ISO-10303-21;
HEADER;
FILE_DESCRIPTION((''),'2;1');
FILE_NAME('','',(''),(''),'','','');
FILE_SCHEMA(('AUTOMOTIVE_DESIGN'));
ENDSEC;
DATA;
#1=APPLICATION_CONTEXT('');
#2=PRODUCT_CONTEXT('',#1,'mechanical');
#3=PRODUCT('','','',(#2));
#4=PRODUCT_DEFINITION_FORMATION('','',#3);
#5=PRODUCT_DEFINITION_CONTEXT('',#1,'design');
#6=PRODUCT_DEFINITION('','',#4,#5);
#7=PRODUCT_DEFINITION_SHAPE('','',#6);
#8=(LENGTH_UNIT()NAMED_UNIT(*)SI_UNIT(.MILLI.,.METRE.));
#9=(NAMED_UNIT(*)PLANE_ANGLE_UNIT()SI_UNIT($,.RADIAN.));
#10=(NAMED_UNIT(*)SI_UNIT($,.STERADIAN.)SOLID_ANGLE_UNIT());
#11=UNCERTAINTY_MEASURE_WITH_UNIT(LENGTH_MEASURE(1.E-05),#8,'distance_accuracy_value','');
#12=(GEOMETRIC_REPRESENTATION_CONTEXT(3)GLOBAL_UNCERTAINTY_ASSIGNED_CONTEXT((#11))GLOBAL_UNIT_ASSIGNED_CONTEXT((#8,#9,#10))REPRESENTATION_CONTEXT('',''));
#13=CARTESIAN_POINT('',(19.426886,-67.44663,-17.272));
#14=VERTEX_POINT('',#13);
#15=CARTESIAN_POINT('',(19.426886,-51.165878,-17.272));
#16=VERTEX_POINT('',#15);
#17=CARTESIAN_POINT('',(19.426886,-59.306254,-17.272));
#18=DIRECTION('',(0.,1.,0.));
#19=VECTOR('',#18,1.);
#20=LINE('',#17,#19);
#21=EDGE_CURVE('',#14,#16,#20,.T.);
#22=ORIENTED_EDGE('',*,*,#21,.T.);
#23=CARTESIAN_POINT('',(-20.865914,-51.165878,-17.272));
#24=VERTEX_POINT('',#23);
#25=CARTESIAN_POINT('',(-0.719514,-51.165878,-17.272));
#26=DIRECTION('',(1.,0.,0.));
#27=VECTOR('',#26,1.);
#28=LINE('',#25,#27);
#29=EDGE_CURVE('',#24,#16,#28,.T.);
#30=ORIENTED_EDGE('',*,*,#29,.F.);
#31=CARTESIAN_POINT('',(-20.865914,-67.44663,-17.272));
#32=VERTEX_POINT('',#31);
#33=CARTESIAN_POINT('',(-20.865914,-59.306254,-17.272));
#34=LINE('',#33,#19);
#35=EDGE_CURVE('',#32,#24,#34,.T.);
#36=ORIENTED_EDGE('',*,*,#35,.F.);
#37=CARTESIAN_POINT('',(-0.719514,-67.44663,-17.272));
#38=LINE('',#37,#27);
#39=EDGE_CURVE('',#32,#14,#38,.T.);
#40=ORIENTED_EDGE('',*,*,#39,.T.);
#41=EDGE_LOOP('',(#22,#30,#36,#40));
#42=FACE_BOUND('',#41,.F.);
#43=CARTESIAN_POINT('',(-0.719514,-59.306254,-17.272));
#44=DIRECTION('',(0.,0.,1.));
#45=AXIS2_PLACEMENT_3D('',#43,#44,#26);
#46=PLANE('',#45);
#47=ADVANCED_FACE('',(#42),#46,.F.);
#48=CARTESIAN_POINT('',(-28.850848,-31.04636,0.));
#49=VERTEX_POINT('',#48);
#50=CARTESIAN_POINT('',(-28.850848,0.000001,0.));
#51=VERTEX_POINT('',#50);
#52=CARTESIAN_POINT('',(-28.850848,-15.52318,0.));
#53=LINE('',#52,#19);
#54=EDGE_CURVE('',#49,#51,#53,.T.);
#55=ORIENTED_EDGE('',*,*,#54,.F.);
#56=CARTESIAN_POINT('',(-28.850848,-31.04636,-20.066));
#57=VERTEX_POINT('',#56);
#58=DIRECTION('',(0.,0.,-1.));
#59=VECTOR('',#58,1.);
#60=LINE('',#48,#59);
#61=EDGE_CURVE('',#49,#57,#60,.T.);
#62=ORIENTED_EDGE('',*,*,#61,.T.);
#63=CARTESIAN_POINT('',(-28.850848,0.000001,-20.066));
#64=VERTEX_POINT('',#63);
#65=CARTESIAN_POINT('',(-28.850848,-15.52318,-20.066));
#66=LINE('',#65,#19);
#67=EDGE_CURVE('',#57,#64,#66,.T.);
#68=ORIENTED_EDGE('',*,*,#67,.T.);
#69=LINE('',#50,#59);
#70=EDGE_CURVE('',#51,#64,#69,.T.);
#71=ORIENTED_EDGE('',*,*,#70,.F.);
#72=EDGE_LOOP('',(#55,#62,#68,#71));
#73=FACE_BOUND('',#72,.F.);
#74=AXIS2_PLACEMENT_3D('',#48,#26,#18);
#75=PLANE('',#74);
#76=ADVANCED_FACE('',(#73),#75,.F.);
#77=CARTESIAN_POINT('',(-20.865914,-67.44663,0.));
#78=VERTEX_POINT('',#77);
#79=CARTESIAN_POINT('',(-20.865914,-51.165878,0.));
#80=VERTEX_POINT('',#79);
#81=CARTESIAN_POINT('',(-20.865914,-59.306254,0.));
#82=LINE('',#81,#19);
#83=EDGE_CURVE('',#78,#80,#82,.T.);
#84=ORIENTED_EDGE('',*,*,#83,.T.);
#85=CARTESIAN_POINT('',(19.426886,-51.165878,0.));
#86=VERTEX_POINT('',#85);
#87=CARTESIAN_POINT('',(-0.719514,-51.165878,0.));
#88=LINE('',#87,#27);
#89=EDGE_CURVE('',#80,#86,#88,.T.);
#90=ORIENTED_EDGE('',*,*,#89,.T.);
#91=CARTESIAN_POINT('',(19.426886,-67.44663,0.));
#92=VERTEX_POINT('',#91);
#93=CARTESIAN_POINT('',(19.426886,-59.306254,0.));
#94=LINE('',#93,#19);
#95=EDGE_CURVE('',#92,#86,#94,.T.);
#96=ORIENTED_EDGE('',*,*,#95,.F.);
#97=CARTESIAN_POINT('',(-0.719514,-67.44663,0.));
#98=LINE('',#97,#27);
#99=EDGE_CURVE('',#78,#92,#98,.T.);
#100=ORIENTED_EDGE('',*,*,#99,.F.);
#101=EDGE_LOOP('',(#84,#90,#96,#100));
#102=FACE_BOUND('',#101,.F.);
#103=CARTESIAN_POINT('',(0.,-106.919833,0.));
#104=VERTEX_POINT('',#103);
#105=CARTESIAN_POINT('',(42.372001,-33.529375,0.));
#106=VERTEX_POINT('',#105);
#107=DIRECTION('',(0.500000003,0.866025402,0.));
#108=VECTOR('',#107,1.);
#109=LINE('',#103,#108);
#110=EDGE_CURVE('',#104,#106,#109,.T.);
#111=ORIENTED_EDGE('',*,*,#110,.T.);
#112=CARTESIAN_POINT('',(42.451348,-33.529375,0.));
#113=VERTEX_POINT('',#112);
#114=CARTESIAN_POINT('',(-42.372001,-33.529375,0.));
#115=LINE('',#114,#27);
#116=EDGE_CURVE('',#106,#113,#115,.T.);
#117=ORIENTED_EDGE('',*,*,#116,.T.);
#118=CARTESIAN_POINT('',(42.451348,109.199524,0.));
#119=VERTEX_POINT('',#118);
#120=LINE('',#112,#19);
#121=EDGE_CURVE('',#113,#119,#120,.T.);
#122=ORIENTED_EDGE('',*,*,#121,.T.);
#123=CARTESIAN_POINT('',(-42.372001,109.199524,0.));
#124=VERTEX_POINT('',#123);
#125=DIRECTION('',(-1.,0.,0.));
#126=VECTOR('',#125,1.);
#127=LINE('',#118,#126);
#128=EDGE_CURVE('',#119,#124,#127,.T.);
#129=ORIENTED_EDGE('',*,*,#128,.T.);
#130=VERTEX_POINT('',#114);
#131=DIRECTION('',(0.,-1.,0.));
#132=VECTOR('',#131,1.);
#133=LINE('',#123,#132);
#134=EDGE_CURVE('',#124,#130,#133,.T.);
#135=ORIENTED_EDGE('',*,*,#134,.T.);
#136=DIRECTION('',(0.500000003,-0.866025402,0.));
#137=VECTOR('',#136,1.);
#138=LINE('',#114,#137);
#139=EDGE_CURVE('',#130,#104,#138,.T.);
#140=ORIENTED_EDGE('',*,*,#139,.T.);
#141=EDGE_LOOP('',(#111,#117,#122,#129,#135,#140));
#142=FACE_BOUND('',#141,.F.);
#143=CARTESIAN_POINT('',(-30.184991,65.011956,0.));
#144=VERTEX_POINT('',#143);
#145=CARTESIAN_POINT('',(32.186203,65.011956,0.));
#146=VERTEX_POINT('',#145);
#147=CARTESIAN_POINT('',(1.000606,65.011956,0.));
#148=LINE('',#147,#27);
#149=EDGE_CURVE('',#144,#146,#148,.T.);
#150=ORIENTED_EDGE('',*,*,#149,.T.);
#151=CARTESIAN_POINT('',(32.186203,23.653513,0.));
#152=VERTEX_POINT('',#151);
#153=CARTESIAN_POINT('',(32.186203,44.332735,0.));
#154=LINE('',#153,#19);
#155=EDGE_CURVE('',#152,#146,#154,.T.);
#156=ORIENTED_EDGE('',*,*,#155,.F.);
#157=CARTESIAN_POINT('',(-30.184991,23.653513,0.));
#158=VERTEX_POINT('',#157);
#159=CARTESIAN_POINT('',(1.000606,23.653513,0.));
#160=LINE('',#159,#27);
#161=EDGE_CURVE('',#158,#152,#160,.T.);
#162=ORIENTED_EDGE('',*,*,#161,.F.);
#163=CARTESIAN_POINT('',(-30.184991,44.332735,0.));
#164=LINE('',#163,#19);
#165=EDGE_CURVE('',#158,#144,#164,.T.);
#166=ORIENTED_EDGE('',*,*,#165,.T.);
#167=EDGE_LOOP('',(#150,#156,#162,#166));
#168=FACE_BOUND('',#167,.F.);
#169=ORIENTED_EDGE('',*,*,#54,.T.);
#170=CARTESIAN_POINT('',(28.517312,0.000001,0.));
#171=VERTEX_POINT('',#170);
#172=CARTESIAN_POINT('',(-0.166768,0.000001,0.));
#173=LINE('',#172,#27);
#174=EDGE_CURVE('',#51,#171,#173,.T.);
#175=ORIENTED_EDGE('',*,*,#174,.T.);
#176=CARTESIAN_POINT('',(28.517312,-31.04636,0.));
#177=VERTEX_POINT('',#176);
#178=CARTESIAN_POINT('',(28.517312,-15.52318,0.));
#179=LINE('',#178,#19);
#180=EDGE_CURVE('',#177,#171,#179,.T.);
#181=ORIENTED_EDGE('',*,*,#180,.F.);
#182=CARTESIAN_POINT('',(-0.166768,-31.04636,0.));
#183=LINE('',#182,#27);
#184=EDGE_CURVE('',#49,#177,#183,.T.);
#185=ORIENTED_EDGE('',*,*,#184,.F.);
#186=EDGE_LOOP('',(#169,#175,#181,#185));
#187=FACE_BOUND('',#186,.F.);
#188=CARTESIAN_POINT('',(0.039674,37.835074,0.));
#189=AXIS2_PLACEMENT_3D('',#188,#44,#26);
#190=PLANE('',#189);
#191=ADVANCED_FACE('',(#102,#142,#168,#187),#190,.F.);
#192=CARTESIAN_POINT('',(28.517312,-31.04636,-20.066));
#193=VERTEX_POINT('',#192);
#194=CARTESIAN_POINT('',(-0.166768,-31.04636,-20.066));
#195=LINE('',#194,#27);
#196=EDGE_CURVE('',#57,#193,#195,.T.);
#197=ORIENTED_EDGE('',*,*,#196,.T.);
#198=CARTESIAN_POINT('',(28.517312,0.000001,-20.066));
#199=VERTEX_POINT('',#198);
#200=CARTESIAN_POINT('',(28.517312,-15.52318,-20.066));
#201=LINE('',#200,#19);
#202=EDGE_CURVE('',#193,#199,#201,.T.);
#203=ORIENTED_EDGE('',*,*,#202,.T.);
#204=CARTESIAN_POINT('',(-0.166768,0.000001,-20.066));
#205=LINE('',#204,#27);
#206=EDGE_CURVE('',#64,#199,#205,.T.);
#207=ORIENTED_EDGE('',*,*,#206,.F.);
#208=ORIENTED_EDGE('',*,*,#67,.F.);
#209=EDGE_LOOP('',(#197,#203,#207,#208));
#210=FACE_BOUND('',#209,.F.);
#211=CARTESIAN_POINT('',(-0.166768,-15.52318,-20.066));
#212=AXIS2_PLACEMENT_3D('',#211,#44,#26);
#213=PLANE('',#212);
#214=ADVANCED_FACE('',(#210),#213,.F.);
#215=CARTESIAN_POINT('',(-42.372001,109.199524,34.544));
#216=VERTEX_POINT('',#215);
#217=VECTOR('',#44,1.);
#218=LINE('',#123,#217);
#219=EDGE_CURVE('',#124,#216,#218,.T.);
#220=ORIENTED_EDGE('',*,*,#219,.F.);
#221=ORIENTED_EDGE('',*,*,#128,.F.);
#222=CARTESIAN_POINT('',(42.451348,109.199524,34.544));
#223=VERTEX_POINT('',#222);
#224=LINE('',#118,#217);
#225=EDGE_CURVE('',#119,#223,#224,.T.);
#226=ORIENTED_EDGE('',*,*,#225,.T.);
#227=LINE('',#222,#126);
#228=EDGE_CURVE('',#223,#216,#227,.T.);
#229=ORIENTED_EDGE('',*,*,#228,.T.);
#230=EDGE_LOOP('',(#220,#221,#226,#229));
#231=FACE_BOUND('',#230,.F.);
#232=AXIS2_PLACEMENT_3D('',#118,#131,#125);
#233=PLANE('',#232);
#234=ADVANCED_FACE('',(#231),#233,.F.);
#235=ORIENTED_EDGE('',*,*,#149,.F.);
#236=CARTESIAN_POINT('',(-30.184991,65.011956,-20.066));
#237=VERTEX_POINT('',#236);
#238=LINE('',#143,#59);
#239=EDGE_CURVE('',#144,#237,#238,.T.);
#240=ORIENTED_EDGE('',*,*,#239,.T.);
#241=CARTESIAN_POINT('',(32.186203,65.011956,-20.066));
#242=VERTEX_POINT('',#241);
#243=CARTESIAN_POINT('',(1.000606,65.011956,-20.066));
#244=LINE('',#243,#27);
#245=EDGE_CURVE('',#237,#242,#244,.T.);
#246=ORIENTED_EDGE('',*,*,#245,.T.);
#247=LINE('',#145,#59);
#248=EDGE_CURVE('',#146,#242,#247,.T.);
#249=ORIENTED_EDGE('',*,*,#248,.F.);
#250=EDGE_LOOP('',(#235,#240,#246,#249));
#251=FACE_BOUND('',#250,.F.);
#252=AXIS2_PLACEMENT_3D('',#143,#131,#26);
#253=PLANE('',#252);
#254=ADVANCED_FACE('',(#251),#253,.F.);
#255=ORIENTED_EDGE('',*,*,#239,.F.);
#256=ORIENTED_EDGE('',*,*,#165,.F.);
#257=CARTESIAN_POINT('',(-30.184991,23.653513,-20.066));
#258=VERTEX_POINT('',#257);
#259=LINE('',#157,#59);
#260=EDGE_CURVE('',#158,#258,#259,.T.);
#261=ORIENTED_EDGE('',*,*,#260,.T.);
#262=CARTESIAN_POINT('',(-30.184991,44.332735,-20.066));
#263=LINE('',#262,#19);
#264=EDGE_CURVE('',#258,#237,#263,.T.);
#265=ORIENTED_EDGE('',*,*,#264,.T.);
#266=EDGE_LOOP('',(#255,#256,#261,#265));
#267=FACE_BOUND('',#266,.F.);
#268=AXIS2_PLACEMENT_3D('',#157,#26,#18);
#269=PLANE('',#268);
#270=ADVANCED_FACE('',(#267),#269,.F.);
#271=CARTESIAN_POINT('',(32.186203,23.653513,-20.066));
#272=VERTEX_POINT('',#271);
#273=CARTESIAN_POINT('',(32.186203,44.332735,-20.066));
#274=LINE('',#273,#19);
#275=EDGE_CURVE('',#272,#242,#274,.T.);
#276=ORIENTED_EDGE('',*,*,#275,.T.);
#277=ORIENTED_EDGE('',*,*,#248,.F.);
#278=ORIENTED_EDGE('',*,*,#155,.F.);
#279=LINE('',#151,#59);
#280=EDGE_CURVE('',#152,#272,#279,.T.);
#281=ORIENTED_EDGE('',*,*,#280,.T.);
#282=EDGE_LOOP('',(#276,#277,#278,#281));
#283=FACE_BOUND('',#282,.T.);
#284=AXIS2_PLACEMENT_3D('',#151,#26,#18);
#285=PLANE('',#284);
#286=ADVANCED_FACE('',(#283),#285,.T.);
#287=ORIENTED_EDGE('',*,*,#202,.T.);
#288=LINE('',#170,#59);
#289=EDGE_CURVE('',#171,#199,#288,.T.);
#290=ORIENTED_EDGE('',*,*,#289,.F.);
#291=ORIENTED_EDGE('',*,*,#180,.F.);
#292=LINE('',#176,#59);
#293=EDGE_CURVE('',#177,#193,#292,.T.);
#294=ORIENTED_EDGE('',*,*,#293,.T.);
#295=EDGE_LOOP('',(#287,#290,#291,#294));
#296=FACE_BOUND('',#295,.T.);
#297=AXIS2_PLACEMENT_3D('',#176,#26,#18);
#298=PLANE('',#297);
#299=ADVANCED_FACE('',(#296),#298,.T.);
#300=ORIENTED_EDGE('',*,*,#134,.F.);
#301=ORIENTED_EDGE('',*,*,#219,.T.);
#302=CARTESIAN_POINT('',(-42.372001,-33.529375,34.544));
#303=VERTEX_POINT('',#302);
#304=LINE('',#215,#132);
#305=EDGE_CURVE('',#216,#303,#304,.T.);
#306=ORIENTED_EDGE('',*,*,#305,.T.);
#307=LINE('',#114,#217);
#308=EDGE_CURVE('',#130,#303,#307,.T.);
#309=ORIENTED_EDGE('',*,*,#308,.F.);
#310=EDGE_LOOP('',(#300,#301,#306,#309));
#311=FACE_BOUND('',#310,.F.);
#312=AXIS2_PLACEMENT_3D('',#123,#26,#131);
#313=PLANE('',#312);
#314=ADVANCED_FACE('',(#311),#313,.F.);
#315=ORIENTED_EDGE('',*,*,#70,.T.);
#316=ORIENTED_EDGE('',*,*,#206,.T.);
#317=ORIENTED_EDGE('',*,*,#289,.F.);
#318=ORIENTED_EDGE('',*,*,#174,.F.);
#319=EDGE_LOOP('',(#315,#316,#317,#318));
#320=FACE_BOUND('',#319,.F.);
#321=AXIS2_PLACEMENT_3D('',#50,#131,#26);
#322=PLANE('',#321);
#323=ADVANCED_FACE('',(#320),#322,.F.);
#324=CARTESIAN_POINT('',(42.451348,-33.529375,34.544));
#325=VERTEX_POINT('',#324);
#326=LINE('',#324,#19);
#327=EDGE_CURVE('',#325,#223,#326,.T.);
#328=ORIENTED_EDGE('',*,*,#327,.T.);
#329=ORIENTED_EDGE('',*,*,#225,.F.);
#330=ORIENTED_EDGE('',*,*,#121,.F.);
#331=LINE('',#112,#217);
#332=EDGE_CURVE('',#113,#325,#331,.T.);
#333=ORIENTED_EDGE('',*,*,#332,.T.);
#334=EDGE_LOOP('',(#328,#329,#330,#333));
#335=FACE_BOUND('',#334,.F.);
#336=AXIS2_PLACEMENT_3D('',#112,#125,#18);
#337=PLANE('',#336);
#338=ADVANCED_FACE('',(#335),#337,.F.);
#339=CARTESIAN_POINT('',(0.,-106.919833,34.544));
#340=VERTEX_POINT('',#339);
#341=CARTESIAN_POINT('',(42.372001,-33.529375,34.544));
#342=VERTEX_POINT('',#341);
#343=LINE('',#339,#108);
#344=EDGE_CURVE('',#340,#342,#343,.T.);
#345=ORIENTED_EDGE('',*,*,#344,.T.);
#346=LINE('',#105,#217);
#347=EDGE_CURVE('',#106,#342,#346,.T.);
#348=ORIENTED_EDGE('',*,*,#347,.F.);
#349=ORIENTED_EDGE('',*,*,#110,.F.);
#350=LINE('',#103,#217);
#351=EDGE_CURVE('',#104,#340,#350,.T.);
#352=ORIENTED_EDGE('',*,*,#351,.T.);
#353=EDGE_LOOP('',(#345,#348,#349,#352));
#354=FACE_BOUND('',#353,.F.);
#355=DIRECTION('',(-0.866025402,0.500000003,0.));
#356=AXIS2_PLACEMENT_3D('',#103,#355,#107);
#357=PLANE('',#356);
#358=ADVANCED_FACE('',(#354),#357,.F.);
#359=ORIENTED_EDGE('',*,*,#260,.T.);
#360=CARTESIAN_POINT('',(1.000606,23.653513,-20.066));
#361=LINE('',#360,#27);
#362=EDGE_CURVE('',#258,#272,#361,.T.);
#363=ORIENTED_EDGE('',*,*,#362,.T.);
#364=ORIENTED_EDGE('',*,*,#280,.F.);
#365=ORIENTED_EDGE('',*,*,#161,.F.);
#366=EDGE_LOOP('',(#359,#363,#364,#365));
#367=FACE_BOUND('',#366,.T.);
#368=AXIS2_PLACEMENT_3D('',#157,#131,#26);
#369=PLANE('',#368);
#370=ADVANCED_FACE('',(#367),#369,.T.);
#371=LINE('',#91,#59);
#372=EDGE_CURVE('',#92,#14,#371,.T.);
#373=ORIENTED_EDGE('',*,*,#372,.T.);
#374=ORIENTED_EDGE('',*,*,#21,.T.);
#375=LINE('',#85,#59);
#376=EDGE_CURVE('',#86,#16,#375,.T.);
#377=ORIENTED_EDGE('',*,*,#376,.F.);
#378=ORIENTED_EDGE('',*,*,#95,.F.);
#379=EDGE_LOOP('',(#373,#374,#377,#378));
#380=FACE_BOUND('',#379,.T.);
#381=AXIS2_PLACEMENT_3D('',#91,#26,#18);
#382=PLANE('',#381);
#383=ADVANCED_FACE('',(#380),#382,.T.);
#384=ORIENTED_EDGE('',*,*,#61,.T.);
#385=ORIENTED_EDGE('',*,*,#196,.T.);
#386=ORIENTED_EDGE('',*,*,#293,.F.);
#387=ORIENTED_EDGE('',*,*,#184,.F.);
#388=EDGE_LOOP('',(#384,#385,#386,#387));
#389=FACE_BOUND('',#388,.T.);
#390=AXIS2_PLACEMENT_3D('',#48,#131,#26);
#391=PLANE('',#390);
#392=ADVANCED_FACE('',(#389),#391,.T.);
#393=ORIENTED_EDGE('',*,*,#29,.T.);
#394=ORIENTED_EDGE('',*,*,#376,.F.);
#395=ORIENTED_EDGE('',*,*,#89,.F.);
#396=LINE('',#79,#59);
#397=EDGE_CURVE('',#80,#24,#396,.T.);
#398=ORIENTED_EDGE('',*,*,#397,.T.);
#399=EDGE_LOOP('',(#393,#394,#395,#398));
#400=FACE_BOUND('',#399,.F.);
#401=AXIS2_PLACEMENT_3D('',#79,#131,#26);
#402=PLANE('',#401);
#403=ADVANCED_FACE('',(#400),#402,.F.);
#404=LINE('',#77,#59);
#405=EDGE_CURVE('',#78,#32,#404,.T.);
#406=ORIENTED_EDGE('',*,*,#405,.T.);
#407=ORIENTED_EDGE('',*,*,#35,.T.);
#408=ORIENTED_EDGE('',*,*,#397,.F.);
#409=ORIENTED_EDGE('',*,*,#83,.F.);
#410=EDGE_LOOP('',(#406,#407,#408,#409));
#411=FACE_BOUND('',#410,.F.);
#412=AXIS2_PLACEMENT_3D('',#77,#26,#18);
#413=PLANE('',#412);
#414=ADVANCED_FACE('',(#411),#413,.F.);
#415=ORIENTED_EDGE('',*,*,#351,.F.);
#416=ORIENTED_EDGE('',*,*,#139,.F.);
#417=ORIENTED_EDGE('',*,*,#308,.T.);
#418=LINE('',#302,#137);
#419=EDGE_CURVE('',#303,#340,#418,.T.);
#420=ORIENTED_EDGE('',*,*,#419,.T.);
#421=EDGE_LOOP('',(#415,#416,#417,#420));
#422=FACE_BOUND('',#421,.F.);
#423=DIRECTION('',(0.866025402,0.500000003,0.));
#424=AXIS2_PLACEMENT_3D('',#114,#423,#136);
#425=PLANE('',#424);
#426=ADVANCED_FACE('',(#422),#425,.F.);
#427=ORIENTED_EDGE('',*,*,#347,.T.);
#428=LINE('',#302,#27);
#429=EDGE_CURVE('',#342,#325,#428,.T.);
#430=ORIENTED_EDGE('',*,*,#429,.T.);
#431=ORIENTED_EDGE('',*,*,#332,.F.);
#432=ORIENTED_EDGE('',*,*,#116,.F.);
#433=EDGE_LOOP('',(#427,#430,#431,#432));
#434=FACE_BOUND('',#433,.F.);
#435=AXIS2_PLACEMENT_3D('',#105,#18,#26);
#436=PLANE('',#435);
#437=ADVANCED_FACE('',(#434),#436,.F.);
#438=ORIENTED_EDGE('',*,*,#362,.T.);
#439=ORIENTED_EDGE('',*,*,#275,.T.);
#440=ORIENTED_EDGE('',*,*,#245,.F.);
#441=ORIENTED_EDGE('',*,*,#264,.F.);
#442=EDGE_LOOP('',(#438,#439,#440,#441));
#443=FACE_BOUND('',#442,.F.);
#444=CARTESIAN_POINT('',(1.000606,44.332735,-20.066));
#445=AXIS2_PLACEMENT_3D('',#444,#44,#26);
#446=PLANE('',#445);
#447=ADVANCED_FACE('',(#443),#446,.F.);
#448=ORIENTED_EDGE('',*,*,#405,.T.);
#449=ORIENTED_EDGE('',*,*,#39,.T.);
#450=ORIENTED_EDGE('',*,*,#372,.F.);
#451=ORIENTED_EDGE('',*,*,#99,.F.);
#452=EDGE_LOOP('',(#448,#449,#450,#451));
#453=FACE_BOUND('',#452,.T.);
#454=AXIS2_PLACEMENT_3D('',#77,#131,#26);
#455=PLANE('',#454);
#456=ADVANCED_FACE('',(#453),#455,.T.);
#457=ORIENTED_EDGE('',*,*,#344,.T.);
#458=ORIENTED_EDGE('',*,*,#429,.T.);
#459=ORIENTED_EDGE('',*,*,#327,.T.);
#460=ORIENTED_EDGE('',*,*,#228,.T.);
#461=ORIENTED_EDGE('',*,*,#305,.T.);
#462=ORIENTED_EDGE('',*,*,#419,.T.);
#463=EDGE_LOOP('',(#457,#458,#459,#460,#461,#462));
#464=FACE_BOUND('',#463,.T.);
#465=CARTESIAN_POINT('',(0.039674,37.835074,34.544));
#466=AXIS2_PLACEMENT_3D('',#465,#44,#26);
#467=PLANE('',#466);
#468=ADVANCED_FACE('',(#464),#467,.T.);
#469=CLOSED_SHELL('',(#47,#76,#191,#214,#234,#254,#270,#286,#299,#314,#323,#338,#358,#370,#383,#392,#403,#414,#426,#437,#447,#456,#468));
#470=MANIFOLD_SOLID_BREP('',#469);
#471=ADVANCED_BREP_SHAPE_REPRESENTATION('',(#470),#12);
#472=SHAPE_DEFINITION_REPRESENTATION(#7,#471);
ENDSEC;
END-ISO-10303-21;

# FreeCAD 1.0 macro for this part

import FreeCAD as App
import Part
import Sketcher
from FreeCAD import Vector
Q = App.Units.Quantity


def add_polygon(sketch, points):
    """Adds a closed chain of lines whose ends are joined by coincident constraints."""
    first, n = sketch.GeometryCount, len(points)
    for a, b in zip(points, points[1:] + points[:1]):
        sketch.addGeometry(Part.LineSegment(App.Vector(*a, 0), App.Vector(*b, 0)), False)
    for i in range(n):
        sketch.addConstraint(Sketcher.Constraint("Coincident", first + i, 2, first + (i + 1) % n, 1))

doc = App.newDocument("Part")
body = doc.addObject("PartDesign::Body", "Body")

sketch1 = doc.addObject("Sketcher::SketchObject", "Sketch")
body.addObject(sketch1)
sketch1.AttachmentSupport = (doc.XY_Plane, [""])
sketch1.MapMode = "FlatFace"
add_polygon(sketch1, [(42.372001, -33.529375), (42.451348, -33.529375), (42.451348, 109.199524), (-42.372001, 109.199524), (-42.372001, -33.529375), (0, -106.919833)])
sketch1.addConstraint(Sketcher.Constraint("Horizontal", 0))
sketch1.addConstraint(Sketcher.Constraint("Vertical", 1))
sketch1.addConstraint(Sketcher.Constraint("Horizontal", 2))
sketch1.addConstraint(Sketcher.Constraint("Vertical", 3))
sketch1.addConstraint(Sketcher.Constraint("Symmetric", 3, 2, 5, 2, -2))
sketch1.addConstraint(Sketcher.Constraint("PointOnObject", 4, 2, -2))
sketch1.addConstraint(Sketcher.Constraint("Angle", 4, Q("-60 deg")))
sketch1.addConstraint(Sketcher.Constraint("DistanceY", 1, 1, 1, 2, 142.728899))
sketch1.addConstraint(Sketcher.Constraint("Distance", 4, 84.744002))
sketch1.addConstraint(Sketcher.Constraint("DistanceX", 2, 2, 2, 1, 84.823349))
sketch1.addConstraint(Sketcher.Constraint("DistanceY", 0, 2, -1, 1, 33.529375))
pad1 = doc.addObject("PartDesign::Pad", "Pad")
body.addObject(pad1)
pad1.Profile = sketch1
pad1.Length = Q("1.36 in")

sketch2 = doc.addObject("Sketcher::SketchObject", "Sketch001")
body.addObject(sketch2)
sketch2.AttachmentSupport = (doc.XY_Plane, [""])
sketch2.MapMode = "FlatFace"
add_polygon(sketch2, [(-20.865914, -51.165878), (-20.865914, -67.44663), (19.426886, -67.44663), (19.426886, -51.165878)])
sketch2.addConstraint(Sketcher.Constraint("Vertical", 0))
sketch2.addConstraint(Sketcher.Constraint("Horizontal", 1))
sketch2.addConstraint(Sketcher.Constraint("Vertical", 2))
sketch2.addConstraint(Sketcher.Constraint("Horizontal", 3))
sketch2.addConstraint(Sketcher.Constraint("DistanceX", 1, 1, 1, 2, 40.292801))
sketch2.addConstraint(Sketcher.Constraint("DistanceY", 0, 2, 0, 1, 16.280751))
sketch2.addConstraint(Sketcher.Constraint("DistanceY", 0, 2, -1, 1, 67.44663))
sketch2.addConstraint(Sketcher.Constraint("DistanceX", 0, 2, -1, 1, 20.865914))
pad2 = doc.addObject("PartDesign::Pad", "Pad001")
body.addObject(pad2)
pad2.Profile = sketch2
pad2.Length = Q("0.68 in")
pad2.Reversed = True

sketch3 = doc.addObject("Sketcher::SketchObject", "Sketch002")
body.addObject(sketch3)
sketch3.AttachmentSupport = (doc.XY_Plane, [""])
sketch3.MapMode = "FlatFace"
add_polygon(sketch3, [(-30.184991, 65.011956), (-30.184991, 23.653513), (32.186203, 23.653513), (32.186203, 65.011956)])
add_polygon(sketch3, [(-28.850848, 0), (-28.850848, -31.04636), (28.517312, -31.04636), (28.517312, 0)])
sketch3.addConstraint(Sketcher.Constraint("Vertical", 0))
sketch3.addConstraint(Sketcher.Constraint("Horizontal", 1))
sketch3.addConstraint(Sketcher.Constraint("Vertical", 2))
sketch3.addConstraint(Sketcher.Constraint("Horizontal", 3))
sketch3.addConstraint(Sketcher.Constraint("Vertical", 4))
sketch3.addConstraint(Sketcher.Constraint("Horizontal", 5))
sketch3.addConstraint(Sketcher.Constraint("Vertical", 6))
sketch3.addConstraint(Sketcher.Constraint("Horizontal", 7))
sketch3.addConstraint(Sketcher.Constraint("PointOnObject", 6, 2, -1))
sketch3.addConstraint(Sketcher.Constraint("DistanceX", 5, 1, 5, 2, 57.368159))
sketch3.addConstraint(Sketcher.Constraint("DistanceY", 4, 2, 4, 1, 31.046361))
sketch3.addConstraint(Sketcher.Constraint("DistanceX", 1, 1, 1, 2, 62.371195))
sketch3.addConstraint(Sketcher.Constraint("DistanceY", 0, 2, 0, 1, 41.358443))
sketch3.addConstraint(Sketcher.Constraint("DistanceX", 0, 2, -1, 1, 30.184991))
sketch3.addConstraint(Sketcher.Constraint("DistanceX", -1, 1, 5, 2, 28.517312))
sketch3.addConstraint(Sketcher.Constraint("DistanceY", -1, 1, 0, 2, 23.653513))
pad3 = doc.addObject("PartDesign::Pad", "Pad002")
body.addObject(pad3)
pad3.Profile = sketch3
pad3.Length = Q("0.79 in")
pad3.Reversed = True

doc.recompute()
